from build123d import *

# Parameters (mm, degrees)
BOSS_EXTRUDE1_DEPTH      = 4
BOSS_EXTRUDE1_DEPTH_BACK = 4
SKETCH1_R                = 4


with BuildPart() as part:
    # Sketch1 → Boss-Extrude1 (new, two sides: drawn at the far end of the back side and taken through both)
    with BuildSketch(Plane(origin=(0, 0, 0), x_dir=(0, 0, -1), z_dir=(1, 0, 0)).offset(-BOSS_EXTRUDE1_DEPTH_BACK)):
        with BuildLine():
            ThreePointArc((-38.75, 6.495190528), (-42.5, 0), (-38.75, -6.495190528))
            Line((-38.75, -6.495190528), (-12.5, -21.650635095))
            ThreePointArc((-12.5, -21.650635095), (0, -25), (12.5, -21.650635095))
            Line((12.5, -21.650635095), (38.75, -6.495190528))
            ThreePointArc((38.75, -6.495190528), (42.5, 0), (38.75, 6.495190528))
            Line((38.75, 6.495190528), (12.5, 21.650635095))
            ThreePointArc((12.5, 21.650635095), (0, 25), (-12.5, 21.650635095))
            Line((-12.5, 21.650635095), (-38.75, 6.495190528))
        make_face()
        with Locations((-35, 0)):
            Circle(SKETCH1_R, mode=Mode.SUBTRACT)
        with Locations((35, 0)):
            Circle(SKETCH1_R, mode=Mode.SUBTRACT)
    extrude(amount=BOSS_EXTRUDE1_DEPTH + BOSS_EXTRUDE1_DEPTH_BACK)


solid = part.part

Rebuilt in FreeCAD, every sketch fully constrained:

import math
import FreeCAD as App
import Part
import Sketcher
Q = App.Units.Quantity

doc = App.newDocument("Part")
body = doc.addObject("PartDesign::Body", "Body")

# Sketch on YZ plane
sketch1 = doc.addObject("Sketcher::SketchObject", "Sketch")
body.addObject(sketch1)
sketch1.AttachmentSupport = (doc.YZ_Plane, [""])
sketch1.MapMode = "FlatFace"
sketch1.addGeometry(Part.ArcOfCircle(Part.Circle(App.Vector(0, 35, 0), App.Vector(0, 0, 1), 7.5), math.radians(30), math.radians(150)), False)
sketch1.addGeometry(Part.LineSegment(App.Vector(-6.5, 38.8, 0), App.Vector(-21.7, 12.5, 0)), False)
sketch1.addGeometry(Part.ArcOfCircle(Part.Circle(App.Vector(0, 0, 0), App.Vector(0, 0, 1), 25), math.radians(150), math.radians(210)), False)
sketch1.addGeometry(Part.LineSegment(App.Vector(-21.7, -12.5, 0), App.Vector(-6.5, -38.8, 0)), False)
sketch1.addGeometry(Part.ArcOfCircle(Part.Circle(App.Vector(0, -35, 0), App.Vector(0, 0, 1), 7.5), math.radians(-150), math.radians(-30)), False)
sketch1.addGeometry(Part.LineSegment(App.Vector(6.5, -38.8, 0), App.Vector(21.7, -12.5, 0)), False)
sketch1.addGeometry(Part.ArcOfCircle(Part.Circle(App.Vector(0, 0, 0), App.Vector(0, 0, 1), 25), math.radians(-30), math.radians(30)), False)
sketch1.addGeometry(Part.LineSegment(App.Vector(21.7, 12.5, 0), App.Vector(6.5, 38.8, 0)), False)
sketch1.addGeometry(Part.Circle(App.Vector(0, 35, 0), App.Vector(0, 0, 1), 4), False)
sketch1.addGeometry(Part.Circle(App.Vector(0, -35, 0), App.Vector(0, 0, 1), 4), False)
sketch1.addConstraint(Sketcher.Constraint("Tangent", 0, 2, 1, 1))
sketch1.addConstraint(Sketcher.Constraint("Tangent", 1, 2, 2, 1))
sketch1.addConstraint(Sketcher.Constraint("Tangent", 2, 2, 3, 1))
sketch1.addConstraint(Sketcher.Constraint("Tangent", 3, 2, 4, 1))
sketch1.addConstraint(Sketcher.Constraint("Tangent", 4, 2, 5, 1))
sketch1.addConstraint(Sketcher.Constraint("Tangent", 5, 2, 6, 1))
sketch1.addConstraint(Sketcher.Constraint("Tangent", 6, 2, 7, 1))
sketch1.addConstraint(Sketcher.Constraint("Tangent", 7, 2, 0, 1))
sketch1.addConstraint(Sketcher.Constraint("Coincident", 2, 3, -1, 1))
sketch1.addConstraint(Sketcher.Constraint("Coincident", 6, 3, -1, 1))
sketch1.addConstraint(Sketcher.Constraint("Coincident", 8, 3, 0, 3))
sketch1.addConstraint(Sketcher.Constraint("Coincident", 9, 3, 4, 3))
sketch1.addConstraint(Sketcher.Constraint("Equal", 0, 4))
sketch1.addConstraint(Sketcher.Constraint("Equal", 2, 6))
sketch1.addConstraint(Sketcher.Constraint("Equal", 8, 9))
sketch1.addConstraint(Sketcher.Constraint("Symmetric", 0, 3, 4, 3, -1, 1))
sketch1.addConstraint(Sketcher.Constraint("PointOnObject", 0, 3, -2))
sketch1.addConstraint(Sketcher.Constraint("Diameter", 8, Q("8 mm")))
sketch1.addConstraint(Sketcher.Constraint("Radius", 2, Q("25 mm")))
sketch1.addConstraint(Sketcher.Constraint("Radius", 0, Q("7.5 mm")))
sketch1.addConstraint(Sketcher.Constraint("Angle", 1, Q("-120 deg")))
pad1 = doc.addObject("PartDesign::Pad", "Pad")
body.addObject(pad1)
pad1.Profile = sketch1
pad1.Type = "TwoLengths"
pad1.Length = 4
pad1.Length2 = 4

doc.recompute()
